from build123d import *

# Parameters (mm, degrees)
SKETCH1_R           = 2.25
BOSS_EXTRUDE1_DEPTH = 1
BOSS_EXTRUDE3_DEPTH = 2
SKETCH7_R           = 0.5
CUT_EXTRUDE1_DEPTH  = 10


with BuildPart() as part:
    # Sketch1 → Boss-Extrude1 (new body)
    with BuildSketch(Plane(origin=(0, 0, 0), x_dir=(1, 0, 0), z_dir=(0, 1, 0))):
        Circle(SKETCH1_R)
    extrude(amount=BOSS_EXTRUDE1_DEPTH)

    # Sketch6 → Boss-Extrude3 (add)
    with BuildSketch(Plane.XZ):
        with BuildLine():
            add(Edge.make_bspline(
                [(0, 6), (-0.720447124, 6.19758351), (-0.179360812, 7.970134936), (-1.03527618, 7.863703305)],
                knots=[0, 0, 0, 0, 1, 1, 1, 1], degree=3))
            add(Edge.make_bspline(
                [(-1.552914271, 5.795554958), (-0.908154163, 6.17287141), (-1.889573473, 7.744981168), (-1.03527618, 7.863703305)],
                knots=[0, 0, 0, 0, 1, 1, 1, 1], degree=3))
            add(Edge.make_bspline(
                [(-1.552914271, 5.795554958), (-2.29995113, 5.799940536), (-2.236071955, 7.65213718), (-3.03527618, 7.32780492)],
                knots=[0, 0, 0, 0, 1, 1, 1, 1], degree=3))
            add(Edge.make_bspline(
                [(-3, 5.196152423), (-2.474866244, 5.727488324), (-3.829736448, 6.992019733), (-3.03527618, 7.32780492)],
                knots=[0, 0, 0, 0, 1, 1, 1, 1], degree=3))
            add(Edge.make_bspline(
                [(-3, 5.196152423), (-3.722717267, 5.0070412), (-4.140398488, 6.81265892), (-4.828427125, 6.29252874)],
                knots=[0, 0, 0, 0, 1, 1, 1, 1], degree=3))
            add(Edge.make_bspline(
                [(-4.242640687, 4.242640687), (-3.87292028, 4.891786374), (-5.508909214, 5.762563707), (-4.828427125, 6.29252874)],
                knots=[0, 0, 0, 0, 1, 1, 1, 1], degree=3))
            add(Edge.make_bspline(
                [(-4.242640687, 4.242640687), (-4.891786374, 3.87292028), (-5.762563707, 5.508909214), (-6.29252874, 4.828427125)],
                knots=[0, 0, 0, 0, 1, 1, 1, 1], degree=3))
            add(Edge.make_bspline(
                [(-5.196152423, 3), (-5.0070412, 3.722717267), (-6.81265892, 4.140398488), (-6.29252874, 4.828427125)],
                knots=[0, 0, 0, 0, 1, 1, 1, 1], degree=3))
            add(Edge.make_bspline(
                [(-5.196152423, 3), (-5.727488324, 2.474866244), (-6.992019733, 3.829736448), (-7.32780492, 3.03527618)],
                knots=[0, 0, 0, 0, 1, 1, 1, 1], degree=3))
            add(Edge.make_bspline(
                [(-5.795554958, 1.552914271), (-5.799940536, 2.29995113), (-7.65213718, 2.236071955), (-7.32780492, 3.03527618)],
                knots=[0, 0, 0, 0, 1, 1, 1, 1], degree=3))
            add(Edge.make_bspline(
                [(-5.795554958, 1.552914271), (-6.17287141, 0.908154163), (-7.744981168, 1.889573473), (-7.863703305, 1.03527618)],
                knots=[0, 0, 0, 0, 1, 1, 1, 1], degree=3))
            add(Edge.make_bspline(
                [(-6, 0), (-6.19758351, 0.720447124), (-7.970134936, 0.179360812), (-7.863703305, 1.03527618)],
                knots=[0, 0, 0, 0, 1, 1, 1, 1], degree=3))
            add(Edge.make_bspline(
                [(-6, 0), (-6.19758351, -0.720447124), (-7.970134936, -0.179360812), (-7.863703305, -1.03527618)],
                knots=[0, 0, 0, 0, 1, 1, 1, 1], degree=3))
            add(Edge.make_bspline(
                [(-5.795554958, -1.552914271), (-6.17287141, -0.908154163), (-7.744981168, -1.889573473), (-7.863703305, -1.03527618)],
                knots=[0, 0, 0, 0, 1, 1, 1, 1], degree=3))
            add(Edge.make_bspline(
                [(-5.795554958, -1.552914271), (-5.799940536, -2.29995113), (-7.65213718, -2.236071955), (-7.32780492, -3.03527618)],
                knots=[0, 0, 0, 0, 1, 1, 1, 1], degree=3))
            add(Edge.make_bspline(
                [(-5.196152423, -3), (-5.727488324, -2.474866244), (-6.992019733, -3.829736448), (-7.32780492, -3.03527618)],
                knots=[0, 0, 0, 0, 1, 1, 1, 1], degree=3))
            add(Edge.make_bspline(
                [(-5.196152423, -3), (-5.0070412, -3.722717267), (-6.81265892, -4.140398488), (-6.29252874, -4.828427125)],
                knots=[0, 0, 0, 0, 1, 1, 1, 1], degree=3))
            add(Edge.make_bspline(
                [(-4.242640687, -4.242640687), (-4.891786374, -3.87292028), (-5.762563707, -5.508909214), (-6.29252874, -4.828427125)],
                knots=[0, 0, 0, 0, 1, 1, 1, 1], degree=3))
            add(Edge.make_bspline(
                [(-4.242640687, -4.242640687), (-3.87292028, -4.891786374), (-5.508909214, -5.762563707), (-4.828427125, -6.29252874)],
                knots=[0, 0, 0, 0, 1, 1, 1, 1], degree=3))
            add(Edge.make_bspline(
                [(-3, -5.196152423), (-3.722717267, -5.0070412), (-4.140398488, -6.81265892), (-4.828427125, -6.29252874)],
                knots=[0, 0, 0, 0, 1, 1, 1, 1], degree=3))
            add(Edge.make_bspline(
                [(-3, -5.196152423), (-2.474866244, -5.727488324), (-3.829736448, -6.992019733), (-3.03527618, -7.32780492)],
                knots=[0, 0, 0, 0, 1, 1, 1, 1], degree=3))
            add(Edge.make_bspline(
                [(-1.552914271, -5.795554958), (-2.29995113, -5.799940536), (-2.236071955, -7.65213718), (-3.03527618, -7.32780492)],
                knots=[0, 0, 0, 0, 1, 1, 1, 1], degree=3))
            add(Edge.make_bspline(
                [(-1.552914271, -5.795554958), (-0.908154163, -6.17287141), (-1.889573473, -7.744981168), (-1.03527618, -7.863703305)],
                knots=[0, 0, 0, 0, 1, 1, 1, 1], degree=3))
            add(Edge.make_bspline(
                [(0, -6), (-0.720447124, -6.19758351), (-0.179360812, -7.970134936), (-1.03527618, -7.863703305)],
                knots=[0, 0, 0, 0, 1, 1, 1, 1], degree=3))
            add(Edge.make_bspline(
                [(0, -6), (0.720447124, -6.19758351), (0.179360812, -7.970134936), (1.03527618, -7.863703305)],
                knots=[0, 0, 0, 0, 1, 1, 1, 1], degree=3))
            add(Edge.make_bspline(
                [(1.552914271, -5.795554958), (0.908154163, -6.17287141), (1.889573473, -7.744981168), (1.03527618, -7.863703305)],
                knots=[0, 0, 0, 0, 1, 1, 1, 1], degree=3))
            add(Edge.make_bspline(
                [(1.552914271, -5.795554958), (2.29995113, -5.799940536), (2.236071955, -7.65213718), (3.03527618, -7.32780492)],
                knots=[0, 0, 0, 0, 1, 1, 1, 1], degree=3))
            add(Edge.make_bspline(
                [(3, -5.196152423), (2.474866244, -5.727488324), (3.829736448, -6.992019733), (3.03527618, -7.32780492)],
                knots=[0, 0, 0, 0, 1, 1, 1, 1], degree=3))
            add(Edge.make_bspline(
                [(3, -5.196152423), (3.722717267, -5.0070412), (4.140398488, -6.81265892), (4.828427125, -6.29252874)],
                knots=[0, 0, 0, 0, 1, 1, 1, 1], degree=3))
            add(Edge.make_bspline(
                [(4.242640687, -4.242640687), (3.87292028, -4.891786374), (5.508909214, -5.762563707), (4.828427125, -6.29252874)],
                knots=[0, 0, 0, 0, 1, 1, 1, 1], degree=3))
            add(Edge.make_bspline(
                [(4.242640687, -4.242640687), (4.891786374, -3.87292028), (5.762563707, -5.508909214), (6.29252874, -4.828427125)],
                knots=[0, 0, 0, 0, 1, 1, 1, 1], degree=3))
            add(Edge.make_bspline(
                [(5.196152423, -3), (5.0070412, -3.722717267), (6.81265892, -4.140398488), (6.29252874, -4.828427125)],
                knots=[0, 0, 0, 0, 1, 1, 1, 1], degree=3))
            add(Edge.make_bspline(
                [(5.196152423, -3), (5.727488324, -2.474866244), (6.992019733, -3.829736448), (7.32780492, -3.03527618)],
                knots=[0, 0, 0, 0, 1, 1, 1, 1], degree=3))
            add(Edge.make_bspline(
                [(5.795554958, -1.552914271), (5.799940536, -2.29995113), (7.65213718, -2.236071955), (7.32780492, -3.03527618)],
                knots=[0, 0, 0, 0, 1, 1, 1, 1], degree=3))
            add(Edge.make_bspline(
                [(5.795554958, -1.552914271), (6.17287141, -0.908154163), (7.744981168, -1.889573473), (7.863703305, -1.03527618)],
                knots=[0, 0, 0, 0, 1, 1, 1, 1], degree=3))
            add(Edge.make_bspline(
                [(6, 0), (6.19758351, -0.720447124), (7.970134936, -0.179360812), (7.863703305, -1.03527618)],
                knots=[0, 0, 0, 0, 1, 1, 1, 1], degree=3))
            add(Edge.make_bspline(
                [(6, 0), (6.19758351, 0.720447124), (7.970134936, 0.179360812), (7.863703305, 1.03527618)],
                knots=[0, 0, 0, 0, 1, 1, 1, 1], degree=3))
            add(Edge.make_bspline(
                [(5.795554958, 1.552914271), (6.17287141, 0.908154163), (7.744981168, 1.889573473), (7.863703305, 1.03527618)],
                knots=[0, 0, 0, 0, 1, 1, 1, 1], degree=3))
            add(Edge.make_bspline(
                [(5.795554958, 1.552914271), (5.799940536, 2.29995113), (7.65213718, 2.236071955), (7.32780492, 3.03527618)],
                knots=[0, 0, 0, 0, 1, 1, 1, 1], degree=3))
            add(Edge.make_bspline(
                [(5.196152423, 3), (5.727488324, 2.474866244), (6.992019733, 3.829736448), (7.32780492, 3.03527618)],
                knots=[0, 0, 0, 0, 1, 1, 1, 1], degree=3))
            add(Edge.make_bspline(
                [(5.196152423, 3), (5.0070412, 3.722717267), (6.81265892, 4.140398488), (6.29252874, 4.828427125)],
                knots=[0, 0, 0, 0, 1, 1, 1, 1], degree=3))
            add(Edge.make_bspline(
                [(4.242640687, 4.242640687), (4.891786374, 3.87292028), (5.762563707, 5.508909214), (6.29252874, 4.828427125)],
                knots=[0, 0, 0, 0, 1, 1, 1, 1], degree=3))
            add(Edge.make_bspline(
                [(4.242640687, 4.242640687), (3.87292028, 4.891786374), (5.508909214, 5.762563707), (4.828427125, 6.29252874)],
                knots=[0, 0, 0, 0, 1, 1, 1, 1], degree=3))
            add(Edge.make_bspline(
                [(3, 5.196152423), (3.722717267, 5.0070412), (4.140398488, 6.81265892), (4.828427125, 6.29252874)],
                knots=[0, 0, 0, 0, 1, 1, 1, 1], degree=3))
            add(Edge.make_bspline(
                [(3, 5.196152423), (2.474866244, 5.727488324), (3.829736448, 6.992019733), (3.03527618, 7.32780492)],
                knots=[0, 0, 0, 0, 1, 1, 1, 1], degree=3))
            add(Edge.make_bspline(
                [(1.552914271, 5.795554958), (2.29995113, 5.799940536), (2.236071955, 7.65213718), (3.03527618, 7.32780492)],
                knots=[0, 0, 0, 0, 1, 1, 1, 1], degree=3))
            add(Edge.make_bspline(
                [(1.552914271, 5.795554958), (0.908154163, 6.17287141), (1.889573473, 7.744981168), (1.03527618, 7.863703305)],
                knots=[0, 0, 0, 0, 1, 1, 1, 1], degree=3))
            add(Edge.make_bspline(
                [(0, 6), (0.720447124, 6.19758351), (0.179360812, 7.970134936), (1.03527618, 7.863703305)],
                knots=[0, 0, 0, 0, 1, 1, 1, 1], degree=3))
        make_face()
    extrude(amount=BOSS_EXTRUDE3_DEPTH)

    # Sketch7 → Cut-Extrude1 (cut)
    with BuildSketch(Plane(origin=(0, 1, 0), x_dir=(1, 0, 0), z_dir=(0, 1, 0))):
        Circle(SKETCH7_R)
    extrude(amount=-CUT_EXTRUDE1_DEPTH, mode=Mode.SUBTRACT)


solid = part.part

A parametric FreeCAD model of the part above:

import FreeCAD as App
import Part
import Sketcher
from FreeCAD import Vector

doc = App.newDocument("Part")
body = doc.addObject("PartDesign::Body", "Body")

sketch1 = body.newObject("Sketcher::SketchObject", "Sketch")
sketch1.AttachmentSupport = (doc.getObject("XZ_Plane"), [""])
sketch1.MapMode = "FlatFace"
sketch1.addGeometry(Part.Circle(Vector(0, 0, 0), Vector(0, 0, 1), 2.2), False)
sketch1.addConstraint([
    Sketcher.Constraint("Coincident", 0, 3, -1, 1),
    Sketcher.Constraint("Diameter", 0, 4.5),
])
pad1 = body.newObject("PartDesign::Pad", "Pad")
pad1.Profile = sketch1
pad1.Length = 1
pad1.Reversed = True

sketch2 = body.newObject("Sketcher::SketchObject", "Sketch001")
sketch2.AttachmentSupport = (doc.getObject("XZ_Plane"), [""])
sketch2.MapMode = "FlatFace"
sketch2.addGeometry([
    Part.BSplineCurve([Vector(0, 6, 0), Vector(-0.720447, 6.197584, 0), Vector(-0.179361, 7.970135, 0), Vector(-1.035276, 7.863703, 0)], [4, 4], [0, 1], False, 3, [1, 1, 1, 1], False),
    Part.BSplineCurve([Vector(-1.552914, 5.795555, 0), Vector(-0.908154, 6.172871, 0), Vector(-1.889573, 7.744981, 0), Vector(-1.035276, 7.863703, 0)], [4, 4], [0, 1], False, 3, [1, 1, 1, 1], False),
    Part.BSplineCurve([Vector(-1.552914, 5.795555, 0), Vector(-2.299951, 5.799941, 0), Vector(-2.236072, 7.652137, 0), Vector(-3.035276, 7.327805, 0)], [4, 4], [0, 1], False, 3, [1, 1, 1, 1], False),
    Part.BSplineCurve([Vector(-3, 5.196152, 0), Vector(-2.474866, 5.727488, 0), Vector(-3.829736, 6.99202, 0), Vector(-3.035276, 7.327805, 0)], [4, 4], [0, 1], False, 3, [1, 1, 1, 1], False),
    Part.BSplineCurve([Vector(-3, 5.196152, 0), Vector(-3.722717, 5.007041, 0), Vector(-4.140398, 6.812659, 0), Vector(-4.828427, 6.292529, 0)], [4, 4], [0, 1], False, 3, [1, 1, 1, 1], False),
    Part.BSplineCurve([Vector(-4.242641, 4.242641, 0), Vector(-3.87292, 4.891786, 0), Vector(-5.508909, 5.762564, 0), Vector(-4.828427, 6.292529, 0)], [4, 4], [0, 1], False, 3, [1, 1, 1, 1], False),
    Part.BSplineCurve([Vector(-4.242641, 4.242641, 0), Vector(-4.891786, 3.87292, 0), Vector(-5.762564, 5.508909, 0), Vector(-6.292529, 4.828427, 0)], [4, 4], [0, 1], False, 3, [1, 1, 1, 1], False),
    Part.BSplineCurve([Vector(-5.196152, 3, 0), Vector(-5.007041, 3.722717, 0), Vector(-6.812659, 4.140398, 0), Vector(-6.292529, 4.828427, 0)], [4, 4], [0, 1], False, 3, [1, 1, 1, 1], False),
    Part.BSplineCurve([Vector(-5.196152, 3, 0), Vector(-5.727488, 2.474866, 0), Vector(-6.99202, 3.829736, 0), Vector(-7.327805, 3.035276, 0)], [4, 4], [0, 1], False, 3, [1, 1, 1, 1], False),
    Part.BSplineCurve([Vector(-5.795555, 1.552914, 0), Vector(-5.799941, 2.299951, 0), Vector(-7.652137, 2.236072, 0), Vector(-7.327805, 3.035276, 0)], [4, 4], [0, 1], False, 3, [1, 1, 1, 1], False),
    Part.BSplineCurve([Vector(-5.795555, 1.552914, 0), Vector(-6.172871, 0.908154, 0), Vector(-7.744981, 1.889573, 0), Vector(-7.863703, 1.035276, 0)], [4, 4], [0, 1], False, 3, [1, 1, 1, 1], False),
    Part.BSplineCurve([Vector(-6, 0, 0), Vector(-6.197584, 0.720447, 0), Vector(-7.970135, 0.179361, 0), Vector(-7.863703, 1.035276, 0)], [4, 4], [0, 1], False, 3, [1, 1, 1, 1], False),
    Part.BSplineCurve([Vector(-6, 0, 0), Vector(-6.197584, -0.720447, 0), Vector(-7.970135, -0.179361, 0), Vector(-7.863703, -1.035276, 0)], [4, 4], [0, 1], False, 3, [1, 1, 1, 1], False),
    Part.BSplineCurve([Vector(-5.795555, -1.552914, 0), Vector(-6.172871, -0.908154, 0), Vector(-7.744981, -1.889573, 0), Vector(-7.863703, -1.035276, 0)], [4, 4], [0, 1], False, 3, [1, 1, 1, 1], False),
    Part.BSplineCurve([Vector(-5.795555, -1.552914, 0), Vector(-5.799941, -2.299951, 0), Vector(-7.652137, -2.236072, 0), Vector(-7.327805, -3.035276, 0)], [4, 4], [0, 1], False, 3, [1, 1, 1, 1], False),
    Part.BSplineCurve([Vector(-5.196152, -3, 0), Vector(-5.727488, -2.474866, 0), Vector(-6.99202, -3.829736, 0), Vector(-7.327805, -3.035276, 0)], [4, 4], [0, 1], False, 3, [1, 1, 1, 1], False),
    Part.BSplineCurve([Vector(-5.196152, -3, 0), Vector(-5.007041, -3.722717, 0), Vector(-6.812659, -4.140398, 0), Vector(-6.292529, -4.828427, 0)], [4, 4], [0, 1], False, 3, [1, 1, 1, 1], False),
    Part.BSplineCurve([Vector(-4.242641, -4.242641, 0), Vector(-4.891786, -3.87292, 0), Vector(-5.762564, -5.508909, 0), Vector(-6.292529, -4.828427, 0)], [4, 4], [0, 1], False, 3, [1, 1, 1, 1], False),
    Part.BSplineCurve([Vector(-4.242641, -4.242641, 0), Vector(-3.87292, -4.891786, 0), Vector(-5.508909, -5.762564, 0), Vector(-4.828427, -6.292529, 0)], [4, 4], [0, 1], False, 3, [1, 1, 1, 1], False),
    Part.BSplineCurve([Vector(-3, -5.196152, 0), Vector(-3.722717, -5.007041, 0), Vector(-4.140398, -6.812659, 0), Vector(-4.828427, -6.292529, 0)], [4, 4], [0, 1], False, 3, [1, 1, 1, 1], False),
    Part.BSplineCurve([Vector(-3, -5.196152, 0), Vector(-2.474866, -5.727488, 0), Vector(-3.829736, -6.99202, 0), Vector(-3.035276, -7.327805, 0)], [4, 4], [0, 1], False, 3, [1, 1, 1, 1], False),
    Part.BSplineCurve([Vector(-1.552914, -5.795555, 0), Vector(-2.299951, -5.799941, 0), Vector(-2.236072, -7.652137, 0), Vector(-3.035276, -7.327805, 0)], [4, 4], [0, 1], False, 3, [1, 1, 1, 1], False),
    Part.BSplineCurve([Vector(-1.552914, -5.795555, 0), Vector(-0.908154, -6.172871, 0), Vector(-1.889573, -7.744981, 0), Vector(-1.035276, -7.863703, 0)], [4, 4], [0, 1], False, 3, [1, 1, 1, 1], False),
    Part.BSplineCurve([Vector(0, -6, 0), Vector(-0.720447, -6.197584, 0), Vector(-0.179361, -7.970135, 0), Vector(-1.035276, -7.863703, 0)], [4, 4], [0, 1], False, 3, [1, 1, 1, 1], False),
    Part.BSplineCurve([Vector(0, -6, 0), Vector(0.720447, -6.197584, 0), Vector(0.179361, -7.970135, 0), Vector(1.035276, -7.863703, 0)], [4, 4], [0, 1], False, 3, [1, 1, 1, 1], False),
    Part.BSplineCurve([Vector(1.552914, -5.795555, 0), Vector(0.908154, -6.172871, 0), Vector(1.889573, -7.744981, 0), Vector(1.035276, -7.863703, 0)], [4, 4], [0, 1], False, 3, [1, 1, 1, 1], False),
    Part.BSplineCurve([Vector(1.552914, -5.795555, 0), Vector(2.299951, -5.799941, 0), Vector(2.236072, -7.652137, 0), Vector(3.035276, -7.327805, 0)], [4, 4], [0, 1], False, 3, [1, 1, 1, 1], False),
    Part.BSplineCurve([Vector(3, -5.196152, 0), Vector(2.474866, -5.727488, 0), Vector(3.829736, -6.99202, 0), Vector(3.035276, -7.327805, 0)], [4, 4], [0, 1], False, 3, [1, 1, 1, 1], False),
    Part.BSplineCurve([Vector(3, -5.196152, 0), Vector(3.722717, -5.007041, 0), Vector(4.140398, -6.812659, 0), Vector(4.828427, -6.292529, 0)], [4, 4], [0, 1], False, 3, [1, 1, 1, 1], False),
    Part.BSplineCurve([Vector(4.242641, -4.242641, 0), Vector(3.87292, -4.891786, 0), Vector(5.508909, -5.762564, 0), Vector(4.828427, -6.292529, 0)], [4, 4], [0, 1], False, 3, [1, 1, 1, 1], False),
    Part.BSplineCurve([Vector(4.242641, -4.242641, 0), Vector(4.891786, -3.87292, 0), Vector(5.762564, -5.508909, 0), Vector(6.292529, -4.828427, 0)], [4, 4], [0, 1], False, 3, [1, 1, 1, 1], False),
    Part.BSplineCurve([Vector(5.196152, -3, 0), Vector(5.007041, -3.722717, 0), Vector(6.812659, -4.140398, 0), Vector(6.292529, -4.828427, 0)], [4, 4], [0, 1], False, 3, [1, 1, 1, 1], False),
    Part.BSplineCurve([Vector(5.196152, -3, 0), Vector(5.727488, -2.474866, 0), Vector(6.99202, -3.829736, 0), Vector(7.327805, -3.035276, 0)], [4, 4], [0, 1], False, 3, [1, 1, 1, 1], False),
    Part.BSplineCurve([Vector(5.795555, -1.552914, 0), Vector(5.799941, -2.299951, 0), Vector(7.652137, -2.236072, 0), Vector(7.327805, -3.035276, 0)], [4, 4], [0, 1], False, 3, [1, 1, 1, 1], False),
    Part.BSplineCurve([Vector(5.795555, -1.552914, 0), Vector(6.172871, -0.908154, 0), Vector(7.744981, -1.889573, 0), Vector(7.863703, -1.035276, 0)], [4, 4], [0, 1], False, 3, [1, 1, 1, 1], False),
    Part.BSplineCurve([Vector(6, 0, 0), Vector(6.197584, -0.720447, 0), Vector(7.970135, -0.179361, 0), Vector(7.863703, -1.035276, 0)], [4, 4], [0, 1], False, 3, [1, 1, 1, 1], False),
    Part.BSplineCurve([Vector(6, 0, 0), Vector(6.197584, 0.720447, 0), Vector(7.970135, 0.179361, 0), Vector(7.863703, 1.035276, 0)], [4, 4], [0, 1], False, 3, [1, 1, 1, 1], False),
    Part.BSplineCurve([Vector(5.795555, 1.552914, 0), Vector(6.172871, 0.908154, 0), Vector(7.744981, 1.889573, 0), Vector(7.863703, 1.035276, 0)], [4, 4], [0, 1], False, 3, [1, 1, 1, 1], False),
    Part.BSplineCurve([Vector(5.795555, 1.552914, 0), Vector(5.799941, 2.299951, 0), Vector(7.652137, 2.236072, 0), Vector(7.327805, 3.035276, 0)], [4, 4], [0, 1], False, 3, [1, 1, 1, 1], False),
    Part.BSplineCurve([Vector(5.196152, 3, 0), Vector(5.727488, 2.474866, 0), Vector(6.99202, 3.829736, 0), Vector(7.327805, 3.035276, 0)], [4, 4], [0, 1], False, 3, [1, 1, 1, 1], False),
    Part.BSplineCurve([Vector(5.196152, 3, 0), Vector(5.007041, 3.722717, 0), Vector(6.812659, 4.140398, 0), Vector(6.292529, 4.828427, 0)], [4, 4], [0, 1], False, 3, [1, 1, 1, 1], False),
    Part.BSplineCurve([Vector(4.242641, 4.242641, 0), Vector(4.891786, 3.87292, 0), Vector(5.762564, 5.508909, 0), Vector(6.292529, 4.828427, 0)], [4, 4], [0, 1], False, 3, [1, 1, 1, 1], False),
    Part.BSplineCurve([Vector(4.242641, 4.242641, 0), Vector(3.87292, 4.891786, 0), Vector(5.508909, 5.762564, 0), Vector(4.828427, 6.292529, 0)], [4, 4], [0, 1], False, 3, [1, 1, 1, 1], False),
    Part.BSplineCurve([Vector(3, 5.196152, 0), Vector(3.722717, 5.007041, 0), Vector(4.140398, 6.812659, 0), Vector(4.828427, 6.292529, 0)], [4, 4], [0, 1], False, 3, [1, 1, 1, 1], False),
    Part.BSplineCurve([Vector(3, 5.196152, 0), Vector(2.474866, 5.727488, 0), Vector(3.829736, 6.99202, 0), Vector(3.035276, 7.327805, 0)], [4, 4], [0, 1], False, 3, [1, 1, 1, 1], False),
    Part.BSplineCurve([Vector(1.552914, 5.795555, 0), Vector(2.299951, 5.799941, 0), Vector(2.236072, 7.652137, 0), Vector(3.035276, 7.327805, 0)], [4, 4], [0, 1], False, 3, [1, 1, 1, 1], False),
    Part.BSplineCurve([Vector(1.552914, 5.795555, 0), Vector(0.908154, 6.172871, 0), Vector(1.889573, 7.744981, 0), Vector(1.035276, 7.863703, 0)], [4, 4], [0, 1], False, 3, [1, 1, 1, 1], False),
    Part.BSplineCurve([Vector(0, 6, 0), Vector(0.720447, 6.197584, 0), Vector(0.179361, 7.970135, 0), Vector(1.035276, 7.863703, 0)], [4, 4], [0, 1], False, 3, [1, 1, 1, 1], False),
], False)
sketch2.addConstraint([
    Sketcher.Constraint("Block", 0),
    Sketcher.Constraint("Block", 1),
    Sketcher.Constraint("Block", 2),
    Sketcher.Constraint("Block", 3),
    Sketcher.Constraint("Block", 4),
    Sketcher.Constraint("Block", 5),
    Sketcher.Constraint("Block", 6),
    Sketcher.Constraint("Block", 7),
    Sketcher.Constraint("Block", 8),
    Sketcher.Constraint("Block", 9),
    Sketcher.Constraint("Block", 10),
    Sketcher.Constraint("Block", 11),
    Sketcher.Constraint("Block", 12),
    Sketcher.Constraint("Block", 13),
    Sketcher.Constraint("Block", 14),
    Sketcher.Constraint("Block", 15),
    Sketcher.Constraint("Block", 16),
    Sketcher.Constraint("Block", 17),
    Sketcher.Constraint("Block", 18),
    Sketcher.Constraint("Block", 19),
    Sketcher.Constraint("Block", 20),
    Sketcher.Constraint("Block", 21),
    Sketcher.Constraint("Block", 22),
    Sketcher.Constraint("Block", 23),
    Sketcher.Constraint("Block", 24),
    Sketcher.Constraint("Block", 25),
    Sketcher.Constraint("Block", 26),
    Sketcher.Constraint("Block", 27),
    Sketcher.Constraint("Block", 28),
    Sketcher.Constraint("Block", 29),
    Sketcher.Constraint("Block", 30),
    Sketcher.Constraint("Block", 31),
    Sketcher.Constraint("Block", 32),
    Sketcher.Constraint("Block", 33),
    Sketcher.Constraint("Block", 34),
    Sketcher.Constraint("Block", 35),
    Sketcher.Constraint("Block", 36),
    Sketcher.Constraint("Block", 37),
    Sketcher.Constraint("Block", 38),
    Sketcher.Constraint("Block", 39),
    Sketcher.Constraint("Block", 40),
    Sketcher.Constraint("Block", 41),
    Sketcher.Constraint("Block", 42),
    Sketcher.Constraint("Block", 43),
    Sketcher.Constraint("Block", 44),
    Sketcher.Constraint("Block", 45),
    Sketcher.Constraint("Block", 46),
    Sketcher.Constraint("Block", 47),
])
pad2 = body.newObject("PartDesign::Pad", "Pad001")
pad2.Profile = sketch2
pad2.Length = 2

sketch3 = body.newObject("Sketcher::SketchObject", "Sketch002")
sketch3.AttachmentSupport = (doc.getObject("XZ_Plane"), [""])
sketch3.MapMode = "FlatFace"
sketch3.AttachmentOffset = App.Placement(Vector(0, 0, -1), App.Rotation())
sketch3.addGeometry(Part.Circle(Vector(0, 0, 0), Vector(0, 0, 1), 0.5), False)
sketch3.addConstraint([
    Sketcher.Constraint("Coincident", 0, 3, -1, 1),
    Sketcher.Constraint("Diameter", 0, 1.0),
])
pocket1 = body.newObject("PartDesign::Pocket", "Pocket")
pocket1.Profile = sketch3
pocket1.Length = 10
pocket1.Reversed = True

doc.recompute()
